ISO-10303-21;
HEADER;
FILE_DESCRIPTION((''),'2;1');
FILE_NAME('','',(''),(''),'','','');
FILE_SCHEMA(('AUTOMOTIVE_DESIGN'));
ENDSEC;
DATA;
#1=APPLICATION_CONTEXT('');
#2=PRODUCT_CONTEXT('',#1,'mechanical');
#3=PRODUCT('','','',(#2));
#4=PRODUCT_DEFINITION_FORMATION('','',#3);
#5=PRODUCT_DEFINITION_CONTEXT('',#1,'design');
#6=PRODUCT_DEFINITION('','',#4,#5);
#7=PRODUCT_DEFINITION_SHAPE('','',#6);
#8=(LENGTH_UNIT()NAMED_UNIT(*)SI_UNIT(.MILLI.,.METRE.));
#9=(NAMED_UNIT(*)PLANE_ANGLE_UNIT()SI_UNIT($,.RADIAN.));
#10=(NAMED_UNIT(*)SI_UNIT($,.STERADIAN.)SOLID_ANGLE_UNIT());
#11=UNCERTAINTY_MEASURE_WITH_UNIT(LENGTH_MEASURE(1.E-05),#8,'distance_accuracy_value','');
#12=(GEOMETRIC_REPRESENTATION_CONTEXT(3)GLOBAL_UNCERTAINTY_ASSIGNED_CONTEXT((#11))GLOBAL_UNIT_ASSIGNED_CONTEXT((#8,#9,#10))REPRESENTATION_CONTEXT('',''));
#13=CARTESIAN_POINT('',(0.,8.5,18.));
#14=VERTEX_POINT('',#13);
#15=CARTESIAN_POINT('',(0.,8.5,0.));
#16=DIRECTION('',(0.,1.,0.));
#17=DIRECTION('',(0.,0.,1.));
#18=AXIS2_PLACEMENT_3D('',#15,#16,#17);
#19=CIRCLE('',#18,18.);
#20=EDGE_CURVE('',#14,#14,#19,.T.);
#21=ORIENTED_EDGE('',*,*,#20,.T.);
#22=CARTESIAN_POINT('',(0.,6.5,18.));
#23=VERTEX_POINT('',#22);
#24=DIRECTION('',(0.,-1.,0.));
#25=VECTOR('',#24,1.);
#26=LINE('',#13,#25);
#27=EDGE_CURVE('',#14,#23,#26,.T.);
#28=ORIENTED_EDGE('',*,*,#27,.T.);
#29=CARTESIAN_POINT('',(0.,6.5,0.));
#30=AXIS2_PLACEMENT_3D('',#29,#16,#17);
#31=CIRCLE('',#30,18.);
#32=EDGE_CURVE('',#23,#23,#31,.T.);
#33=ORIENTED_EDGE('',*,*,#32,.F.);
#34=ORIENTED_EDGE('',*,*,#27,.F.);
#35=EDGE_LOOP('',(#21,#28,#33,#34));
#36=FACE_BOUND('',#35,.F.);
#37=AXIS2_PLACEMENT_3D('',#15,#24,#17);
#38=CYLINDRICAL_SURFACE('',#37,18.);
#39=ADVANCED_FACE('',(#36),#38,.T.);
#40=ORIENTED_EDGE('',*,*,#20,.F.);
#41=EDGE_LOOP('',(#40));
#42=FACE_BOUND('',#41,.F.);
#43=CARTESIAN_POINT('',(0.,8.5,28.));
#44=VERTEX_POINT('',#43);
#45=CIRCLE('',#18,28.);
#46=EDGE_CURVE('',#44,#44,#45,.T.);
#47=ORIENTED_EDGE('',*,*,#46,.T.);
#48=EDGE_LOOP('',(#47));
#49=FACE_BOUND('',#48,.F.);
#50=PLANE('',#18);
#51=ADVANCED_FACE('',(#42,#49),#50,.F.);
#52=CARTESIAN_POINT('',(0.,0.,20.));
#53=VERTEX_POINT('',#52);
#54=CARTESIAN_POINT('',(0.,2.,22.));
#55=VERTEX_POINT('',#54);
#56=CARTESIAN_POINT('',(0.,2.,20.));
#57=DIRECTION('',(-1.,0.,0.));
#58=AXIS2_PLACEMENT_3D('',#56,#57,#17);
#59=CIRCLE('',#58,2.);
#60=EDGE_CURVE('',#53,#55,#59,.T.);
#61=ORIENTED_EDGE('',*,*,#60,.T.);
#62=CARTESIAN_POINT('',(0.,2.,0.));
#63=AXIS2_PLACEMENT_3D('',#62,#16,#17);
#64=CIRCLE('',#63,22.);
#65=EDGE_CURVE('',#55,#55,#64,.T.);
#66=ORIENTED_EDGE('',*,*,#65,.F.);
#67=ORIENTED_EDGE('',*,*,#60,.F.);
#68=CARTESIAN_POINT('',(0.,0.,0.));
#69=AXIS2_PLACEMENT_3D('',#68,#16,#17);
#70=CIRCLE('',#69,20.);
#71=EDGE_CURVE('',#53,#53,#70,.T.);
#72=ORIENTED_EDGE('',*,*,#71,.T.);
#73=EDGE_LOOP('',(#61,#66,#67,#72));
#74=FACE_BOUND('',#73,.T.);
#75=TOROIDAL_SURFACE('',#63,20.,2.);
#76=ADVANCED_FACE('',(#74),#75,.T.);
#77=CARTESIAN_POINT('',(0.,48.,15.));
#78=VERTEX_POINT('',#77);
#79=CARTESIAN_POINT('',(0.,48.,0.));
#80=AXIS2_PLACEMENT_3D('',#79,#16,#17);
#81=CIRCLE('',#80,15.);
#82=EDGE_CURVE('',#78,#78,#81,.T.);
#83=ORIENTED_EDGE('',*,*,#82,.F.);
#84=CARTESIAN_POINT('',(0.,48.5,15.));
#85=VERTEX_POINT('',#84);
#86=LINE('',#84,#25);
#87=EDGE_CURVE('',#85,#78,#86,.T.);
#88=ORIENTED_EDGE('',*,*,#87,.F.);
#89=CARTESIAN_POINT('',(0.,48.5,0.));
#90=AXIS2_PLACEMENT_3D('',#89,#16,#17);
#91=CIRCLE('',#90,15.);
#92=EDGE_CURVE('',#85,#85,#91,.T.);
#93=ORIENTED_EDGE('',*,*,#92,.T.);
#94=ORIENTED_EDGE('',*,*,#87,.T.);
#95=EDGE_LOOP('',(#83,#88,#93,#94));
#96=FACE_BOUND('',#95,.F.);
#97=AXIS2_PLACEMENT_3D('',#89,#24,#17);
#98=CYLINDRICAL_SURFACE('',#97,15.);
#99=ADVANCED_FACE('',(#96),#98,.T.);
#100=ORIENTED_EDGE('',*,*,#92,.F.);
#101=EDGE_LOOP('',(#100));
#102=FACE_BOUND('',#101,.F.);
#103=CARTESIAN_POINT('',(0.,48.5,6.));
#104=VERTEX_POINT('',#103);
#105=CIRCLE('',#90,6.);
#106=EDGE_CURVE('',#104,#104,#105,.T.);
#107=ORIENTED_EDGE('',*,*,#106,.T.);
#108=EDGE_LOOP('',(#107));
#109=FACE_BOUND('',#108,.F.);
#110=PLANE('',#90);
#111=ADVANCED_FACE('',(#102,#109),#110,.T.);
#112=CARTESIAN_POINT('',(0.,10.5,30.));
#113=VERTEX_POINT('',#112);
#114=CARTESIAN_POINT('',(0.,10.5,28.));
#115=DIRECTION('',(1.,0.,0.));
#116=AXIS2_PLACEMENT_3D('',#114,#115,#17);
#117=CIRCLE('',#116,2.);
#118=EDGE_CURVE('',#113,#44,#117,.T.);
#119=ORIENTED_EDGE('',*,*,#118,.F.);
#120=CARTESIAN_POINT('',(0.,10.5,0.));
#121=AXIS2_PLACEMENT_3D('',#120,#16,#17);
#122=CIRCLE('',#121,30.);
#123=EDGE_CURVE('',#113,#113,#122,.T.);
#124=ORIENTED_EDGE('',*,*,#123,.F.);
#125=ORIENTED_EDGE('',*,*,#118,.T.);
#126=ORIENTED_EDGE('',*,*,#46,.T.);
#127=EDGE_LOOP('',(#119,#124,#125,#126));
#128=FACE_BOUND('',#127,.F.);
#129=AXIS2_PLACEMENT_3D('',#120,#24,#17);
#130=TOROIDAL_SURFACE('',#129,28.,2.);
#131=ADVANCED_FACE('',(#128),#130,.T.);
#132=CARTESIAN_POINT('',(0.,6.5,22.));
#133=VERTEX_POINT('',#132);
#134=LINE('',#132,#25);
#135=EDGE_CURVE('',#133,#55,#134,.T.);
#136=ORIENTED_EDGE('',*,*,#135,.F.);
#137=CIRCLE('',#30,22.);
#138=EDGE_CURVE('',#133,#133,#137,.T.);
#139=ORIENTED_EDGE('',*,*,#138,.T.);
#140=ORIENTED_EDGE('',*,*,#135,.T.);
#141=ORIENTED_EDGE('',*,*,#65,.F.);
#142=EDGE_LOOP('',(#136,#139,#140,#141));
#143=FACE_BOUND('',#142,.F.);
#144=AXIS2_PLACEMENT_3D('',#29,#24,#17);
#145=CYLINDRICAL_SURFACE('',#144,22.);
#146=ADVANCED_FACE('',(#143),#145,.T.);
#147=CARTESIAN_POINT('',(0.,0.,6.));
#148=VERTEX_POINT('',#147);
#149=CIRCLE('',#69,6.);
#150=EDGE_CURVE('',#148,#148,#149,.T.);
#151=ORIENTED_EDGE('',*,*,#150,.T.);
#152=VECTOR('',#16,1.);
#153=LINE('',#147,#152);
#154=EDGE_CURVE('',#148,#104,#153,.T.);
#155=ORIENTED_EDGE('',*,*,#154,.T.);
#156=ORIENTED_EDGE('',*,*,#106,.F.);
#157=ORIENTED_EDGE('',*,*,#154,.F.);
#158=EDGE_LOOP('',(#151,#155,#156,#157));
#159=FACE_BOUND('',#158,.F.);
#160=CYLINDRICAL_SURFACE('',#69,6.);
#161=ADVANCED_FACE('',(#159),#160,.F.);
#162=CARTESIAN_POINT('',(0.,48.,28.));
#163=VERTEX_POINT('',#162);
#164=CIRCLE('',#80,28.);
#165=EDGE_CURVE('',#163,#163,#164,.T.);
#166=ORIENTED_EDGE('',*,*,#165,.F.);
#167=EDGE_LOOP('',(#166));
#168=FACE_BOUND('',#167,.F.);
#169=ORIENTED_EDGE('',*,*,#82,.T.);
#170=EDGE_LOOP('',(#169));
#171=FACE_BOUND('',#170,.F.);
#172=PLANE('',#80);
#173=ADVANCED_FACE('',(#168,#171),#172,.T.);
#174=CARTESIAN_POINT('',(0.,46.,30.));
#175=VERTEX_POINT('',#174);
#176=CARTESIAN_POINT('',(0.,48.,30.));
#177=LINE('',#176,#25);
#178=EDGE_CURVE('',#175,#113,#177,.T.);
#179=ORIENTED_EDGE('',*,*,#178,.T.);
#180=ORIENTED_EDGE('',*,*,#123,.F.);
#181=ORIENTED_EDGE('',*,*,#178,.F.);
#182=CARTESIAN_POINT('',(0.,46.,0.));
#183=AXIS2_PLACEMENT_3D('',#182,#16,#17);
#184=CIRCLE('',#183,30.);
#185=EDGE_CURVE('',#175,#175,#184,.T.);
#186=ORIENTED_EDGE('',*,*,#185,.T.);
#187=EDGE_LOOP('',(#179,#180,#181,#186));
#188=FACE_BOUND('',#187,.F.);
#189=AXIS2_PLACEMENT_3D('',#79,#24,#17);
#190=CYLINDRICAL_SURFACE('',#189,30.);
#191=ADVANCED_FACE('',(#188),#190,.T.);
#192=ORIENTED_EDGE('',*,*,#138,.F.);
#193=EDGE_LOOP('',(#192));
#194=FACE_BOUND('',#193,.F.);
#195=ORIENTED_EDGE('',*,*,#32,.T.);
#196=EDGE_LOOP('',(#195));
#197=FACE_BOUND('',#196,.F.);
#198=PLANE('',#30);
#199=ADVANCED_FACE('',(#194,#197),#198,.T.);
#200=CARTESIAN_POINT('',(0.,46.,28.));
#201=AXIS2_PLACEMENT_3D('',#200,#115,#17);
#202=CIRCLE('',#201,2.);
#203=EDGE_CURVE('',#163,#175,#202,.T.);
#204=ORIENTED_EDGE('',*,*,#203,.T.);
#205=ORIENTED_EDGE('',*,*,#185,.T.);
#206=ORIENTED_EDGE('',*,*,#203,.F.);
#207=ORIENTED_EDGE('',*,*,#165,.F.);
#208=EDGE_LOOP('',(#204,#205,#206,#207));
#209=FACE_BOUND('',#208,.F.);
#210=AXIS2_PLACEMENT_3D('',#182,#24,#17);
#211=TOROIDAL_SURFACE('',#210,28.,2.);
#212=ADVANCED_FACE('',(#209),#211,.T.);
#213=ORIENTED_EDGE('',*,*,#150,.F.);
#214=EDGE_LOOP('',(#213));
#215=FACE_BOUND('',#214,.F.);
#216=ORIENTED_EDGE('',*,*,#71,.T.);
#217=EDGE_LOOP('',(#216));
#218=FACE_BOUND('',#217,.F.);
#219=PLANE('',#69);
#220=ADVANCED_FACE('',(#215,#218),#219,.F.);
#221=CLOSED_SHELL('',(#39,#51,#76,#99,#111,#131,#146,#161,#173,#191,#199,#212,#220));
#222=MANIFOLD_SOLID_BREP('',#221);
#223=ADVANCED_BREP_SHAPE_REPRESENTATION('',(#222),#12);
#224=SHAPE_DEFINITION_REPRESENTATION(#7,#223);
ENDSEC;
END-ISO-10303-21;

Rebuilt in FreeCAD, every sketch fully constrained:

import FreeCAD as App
import Part
import Sketcher
Q = App.Units.Quantity


def edges_at(feature, points):
    """Names of the edges that pass closest to the given points."""
    edges = feature.Shape.Edges
    near = lambda p: min(range(len(edges)), key=lambda i: edges[i].distToShape(Part.Vertex(*p))[0])
    return sorted({f"Edge{near(p) + 1}" for p in points})


def add_polygon(sketch, points):
    """Adds a closed chain of lines whose ends are joined by coincident constraints."""
    first, n = sketch.GeometryCount, len(points)
    for a, b in zip(points, points[1:] + points[:1]):
        sketch.addGeometry(Part.LineSegment(App.Vector(*a, 0), App.Vector(*b, 0)), False)
    for i in range(n):
        sketch.addConstraint(Sketcher.Constraint("Coincident", first + i, 2, first + (i + 1) % n, 1))

doc = App.newDocument("Part")
params = doc.addObject("Spreadsheet::Sheet", "Params")
for row, (alias, value) in enumerate([
    ("sketch1_width", "2 mm"),
    ("sketch1_height", "16 mm"),
    ("sketch1_height2", "9 mm"),
    ("sketch1_height3", "15 mm"),
    ("sketch1_height4", "12 mm"),
    ("revolution_angle", "360 deg"),
    ("fillet_radius", "2 mm"),
], start=1):
    params.set(f"A{row}", alias)
    params.set(f"B{row}", "=" + value)
    params.setAlias(f"B{row}", alias)

body = doc.addObject("PartDesign::Body", "Body")

sketch1 = body.newObject("Sketcher::SketchObject", "Sketch")
sketch1.AttachmentSupport = (doc.getObject("YZ_Plane"), [""])
sketch1.MapMode = "FlatFace"
add_polygon(sketch1, [(0, 22), (0, 6), (48.5, 6), (48.5, 15), (48, 15), (48, 30), (8.5, 30), (8.5, 18), (6.5, 18), (6.5, 22)])
sketch1.addConstraint([
    Sketcher.Constraint("Vertical", 0),
    Sketcher.Constraint("Horizontal", 1),
    Sketcher.Constraint("Vertical", 2),
    Sketcher.Constraint("Horizontal", 3),
    Sketcher.Constraint("Vertical", 4),
    Sketcher.Constraint("Horizontal", 5),
    Sketcher.Constraint("Vertical", 6),
    Sketcher.Constraint("Horizontal", 7),
    Sketcher.Constraint("Vertical", 8),
    Sketcher.Constraint("Horizontal", 9),
    Sketcher.Constraint("PointOnObject", 0, 2, -2),
    Sketcher.Constraint("DistanceX", 7, 2, 7, 1, Q("2 mm")),
    Sketcher.Constraint("DistanceY", 0, 2, 0, 1, Q("16 mm")),
    Sketcher.Constraint("DistanceY", 2, 1, 2, 2, Q("9 mm")),
    Sketcher.Constraint("DistanceY", 4, 1, 4, 2, Q("15 mm")),
    Sketcher.Constraint("DistanceY", 6, 2, 6, 1, Q("12 mm")),
    Sketcher.Constraint("DistanceX", 1, 1, 1, 2, Q("48.5 mm")),
    Sketcher.Constraint("DistanceX", 3, 2, 3, 1, Q("0.5 mm")),
    Sketcher.Constraint("DistanceX", 5, 2, 5, 1, Q("39.5 mm")),
    Sketcher.Constraint("DistanceY", -1, 1, 0, 2, Q("6 mm")),
])
sketch1.setExpression("Constraints[21]", "Params.sketch1_width")
sketch1.setExpression("Constraints[22]", "Params.sketch1_height")
sketch1.setExpression("Constraints[23]", "Params.sketch1_height2")
sketch1.setExpression("Constraints[24]", "Params.sketch1_height3")
sketch1.setExpression("Constraints[25]", "Params.sketch1_height4")
revolution = body.newObject("PartDesign::Revolution", "Revolution")
revolution.Profile = sketch1
revolution.ReferenceAxis = (sketch1, ["H_Axis"])
revolution.setExpression("Angle", "Params.revolution_angle")
doc.recompute()

fillet = body.newObject("PartDesign::Fillet", "Fillet")
fillet.Base = (revolution, edges_at(revolution, [(0, 0, -22), (0, 8.5, -30), (0, 48, -30)]))
fillet.setExpression("Radius", "Params.fillet_radius")

doc.recompute()
